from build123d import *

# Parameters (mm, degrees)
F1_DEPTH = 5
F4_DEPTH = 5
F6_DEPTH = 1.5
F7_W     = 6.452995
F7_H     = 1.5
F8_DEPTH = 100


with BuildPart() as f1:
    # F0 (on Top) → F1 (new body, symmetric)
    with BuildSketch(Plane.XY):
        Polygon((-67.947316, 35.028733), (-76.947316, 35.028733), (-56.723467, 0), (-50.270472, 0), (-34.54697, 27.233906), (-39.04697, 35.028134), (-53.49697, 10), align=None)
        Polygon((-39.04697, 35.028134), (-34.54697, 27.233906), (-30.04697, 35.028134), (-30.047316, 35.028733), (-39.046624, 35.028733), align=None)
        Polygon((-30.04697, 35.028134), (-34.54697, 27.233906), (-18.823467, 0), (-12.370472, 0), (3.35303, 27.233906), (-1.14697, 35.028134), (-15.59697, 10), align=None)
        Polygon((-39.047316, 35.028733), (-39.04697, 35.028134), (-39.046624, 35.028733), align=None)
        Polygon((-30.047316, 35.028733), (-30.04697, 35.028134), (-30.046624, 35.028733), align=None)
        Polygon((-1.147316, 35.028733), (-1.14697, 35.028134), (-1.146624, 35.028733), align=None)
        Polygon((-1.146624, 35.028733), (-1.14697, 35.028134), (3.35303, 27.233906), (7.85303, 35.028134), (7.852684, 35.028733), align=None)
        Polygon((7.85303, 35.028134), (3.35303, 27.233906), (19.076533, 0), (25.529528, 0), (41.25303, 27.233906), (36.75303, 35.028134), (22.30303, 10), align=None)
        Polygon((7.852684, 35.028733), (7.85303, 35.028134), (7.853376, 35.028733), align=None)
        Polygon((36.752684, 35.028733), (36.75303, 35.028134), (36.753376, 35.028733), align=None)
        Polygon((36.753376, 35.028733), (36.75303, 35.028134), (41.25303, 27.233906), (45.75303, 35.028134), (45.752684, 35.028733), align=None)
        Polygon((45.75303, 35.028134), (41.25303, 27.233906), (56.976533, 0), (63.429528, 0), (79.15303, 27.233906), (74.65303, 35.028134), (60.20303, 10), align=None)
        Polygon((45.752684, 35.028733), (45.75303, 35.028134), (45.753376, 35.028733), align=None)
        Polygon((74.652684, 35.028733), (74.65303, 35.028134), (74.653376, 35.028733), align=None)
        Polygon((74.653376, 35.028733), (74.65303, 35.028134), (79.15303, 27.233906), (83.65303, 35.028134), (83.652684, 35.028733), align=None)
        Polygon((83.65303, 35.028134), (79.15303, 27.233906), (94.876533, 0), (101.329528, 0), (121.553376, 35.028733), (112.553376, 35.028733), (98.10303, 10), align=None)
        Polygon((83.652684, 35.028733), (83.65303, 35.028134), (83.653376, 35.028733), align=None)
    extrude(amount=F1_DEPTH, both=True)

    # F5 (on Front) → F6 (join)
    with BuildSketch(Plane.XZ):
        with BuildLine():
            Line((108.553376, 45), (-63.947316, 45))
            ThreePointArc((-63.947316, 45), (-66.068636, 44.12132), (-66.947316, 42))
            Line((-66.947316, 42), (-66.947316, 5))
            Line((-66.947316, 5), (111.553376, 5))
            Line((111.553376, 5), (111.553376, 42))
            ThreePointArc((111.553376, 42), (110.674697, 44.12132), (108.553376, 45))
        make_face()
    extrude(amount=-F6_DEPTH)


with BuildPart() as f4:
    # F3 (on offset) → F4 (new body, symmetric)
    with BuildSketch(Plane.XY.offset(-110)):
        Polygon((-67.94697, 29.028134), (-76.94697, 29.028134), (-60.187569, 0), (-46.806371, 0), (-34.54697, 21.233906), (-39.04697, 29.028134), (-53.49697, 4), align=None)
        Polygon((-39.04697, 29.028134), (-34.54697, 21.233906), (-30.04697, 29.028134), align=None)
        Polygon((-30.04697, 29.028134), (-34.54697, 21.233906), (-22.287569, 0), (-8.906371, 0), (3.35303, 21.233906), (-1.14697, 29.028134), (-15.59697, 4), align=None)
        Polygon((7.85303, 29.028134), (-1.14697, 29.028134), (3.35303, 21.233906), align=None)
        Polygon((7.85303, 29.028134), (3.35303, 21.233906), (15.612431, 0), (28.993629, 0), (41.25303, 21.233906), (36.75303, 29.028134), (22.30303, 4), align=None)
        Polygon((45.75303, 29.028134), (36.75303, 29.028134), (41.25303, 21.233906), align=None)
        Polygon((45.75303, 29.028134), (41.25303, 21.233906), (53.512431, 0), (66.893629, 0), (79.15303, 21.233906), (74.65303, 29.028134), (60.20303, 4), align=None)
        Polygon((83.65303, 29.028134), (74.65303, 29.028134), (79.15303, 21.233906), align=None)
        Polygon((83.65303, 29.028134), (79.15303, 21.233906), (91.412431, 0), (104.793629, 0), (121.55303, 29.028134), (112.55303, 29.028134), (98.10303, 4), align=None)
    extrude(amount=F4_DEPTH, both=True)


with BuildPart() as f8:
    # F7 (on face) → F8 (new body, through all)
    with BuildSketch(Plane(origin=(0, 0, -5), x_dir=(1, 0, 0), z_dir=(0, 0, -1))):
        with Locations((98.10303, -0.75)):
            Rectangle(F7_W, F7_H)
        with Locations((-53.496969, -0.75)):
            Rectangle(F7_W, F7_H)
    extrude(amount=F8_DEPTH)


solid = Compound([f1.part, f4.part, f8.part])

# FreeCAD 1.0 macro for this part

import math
import FreeCAD as App
import Part
import Sketcher

V = App.Vector
Q = App.Units.Quantity

doc = App.newDocument("Part")
body = doc.addObject("PartDesign::Body", "Body")

sketch1 = body.newObject("Sketcher::SketchObject", "Sketch")
sketch1.AttachmentSupport = (doc.getObject("XY_Plane"), [""])
sketch1.MapMode = "FlatFace"
sketch1.addGeometry([
    Part.LineSegment(V(-67.947316, 35.028733, 0), V(-76.947316, 35.028733, 0)),
    Part.LineSegment(V(-76.947316, 35.028733, 0), V(-56.723467, 0, 0)),
    Part.LineSegment(V(-56.723467, 0, 0), V(-50.270472, 0, 0)),
    Part.LineSegment(V(-50.270472, 0, 0), V(-34.54697, 27.233906, 0)),
    Part.LineSegment(V(-34.54697, 27.233906, 0), V(-18.823467, 0, 0)),
    Part.LineSegment(V(-18.823467, 0, 0), V(-12.370472, 0, 0)),
    Part.LineSegment(V(-12.370472, 0, 0), V(3.35303, 27.233906, 0)),
    Part.LineSegment(V(3.35303, 27.233906, 0), V(19.076533, 0, 0)),
    Part.LineSegment(V(19.076533, 0, 0), V(25.529528, 0, 0)),
    Part.LineSegment(V(25.529528, 0, 0), V(41.25303, 27.233906, 0)),
    Part.LineSegment(V(41.25303, 27.233906, 0), V(56.976533, 0, 0)),
    Part.LineSegment(V(56.976533, 0, 0), V(63.429528, 0, 0)),
    Part.LineSegment(V(63.429528, 0, 0), V(79.15303, 27.233906, 0)),
    Part.LineSegment(V(79.15303, 27.233906, 0), V(94.876533, 0, 0)),
    Part.LineSegment(V(94.876533, 0, 0), V(101.329528, 0, 0)),
    Part.LineSegment(V(101.329528, 0, 0), V(121.553376, 35.028733, 0)),
    Part.LineSegment(V(121.553376, 35.028733, 0), V(112.553376, 35.028733, 0)),
    Part.LineSegment(V(112.553376, 35.028733, 0), V(98.10303, 10, 0)),
    Part.LineSegment(V(98.10303, 10, 0), V(83.65303, 35.028134, 0)),
    Part.LineSegment(V(83.65303, 35.028134, 0), V(83.653376, 35.028733, 0)),
    Part.LineSegment(V(83.653376, 35.028733, 0), V(74.652684, 35.028733, 0)),
    Part.LineSegment(V(74.652684, 35.028733, 0), V(74.65303, 35.028134, 0)),
    Part.LineSegment(V(74.65303, 35.028134, 0), V(60.20303, 10, 0)),
    Part.LineSegment(V(60.20303, 10, 0), V(45.75303, 35.028134, 0)),
    Part.LineSegment(V(45.75303, 35.028134, 0), V(45.753376, 35.028733, 0)),
    Part.LineSegment(V(45.753376, 35.028733, 0), V(36.752684, 35.028733, 0)),
    Part.LineSegment(V(36.752684, 35.028733, 0), V(36.75303, 35.028134, 0)),
    Part.LineSegment(V(36.75303, 35.028134, 0), V(22.30303, 10, 0)),
    Part.LineSegment(V(22.30303, 10, 0), V(7.85303, 35.028134, 0)),
    Part.LineSegment(V(7.85303, 35.028134, 0), V(7.853376, 35.028733, 0)),
    Part.LineSegment(V(7.853376, 35.028733, 0), V(-1.147316, 35.028733, 0)),
    Part.LineSegment(V(-1.147316, 35.028733, 0), V(-1.14697, 35.028134, 0)),
    Part.LineSegment(V(-1.14697, 35.028134, 0), V(-15.59697, 10, 0)),
    Part.LineSegment(V(-15.59697, 10, 0), V(-30.04697, 35.028134, 0)),
    Part.LineSegment(V(-30.04697, 35.028134, 0), V(-30.046624, 35.028733, 0)),
    Part.LineSegment(V(-30.046624, 35.028733, 0), V(-39.047316, 35.028733, 0)),
    Part.LineSegment(V(-39.047316, 35.028733, 0), V(-39.04697, 35.028134, 0)),
    Part.LineSegment(V(-39.04697, 35.028134, 0), V(-53.49697, 10, 0)),
    Part.LineSegment(V(-53.49697, 10, 0), V(-67.947316, 35.028733, 0)),
], False)
sketch1.addConstraint([
    Sketcher.Constraint("Coincident", 0, 2, 1, 1),
    Sketcher.Constraint("Coincident", 1, 2, 2, 1),
    Sketcher.Constraint("Coincident", 2, 2, 3, 1),
    Sketcher.Constraint("Coincident", 3, 2, 4, 1),
    Sketcher.Constraint("Coincident", 4, 2, 5, 1),
    Sketcher.Constraint("Coincident", 5, 2, 6, 1),
    Sketcher.Constraint("Coincident", 6, 2, 7, 1),
    Sketcher.Constraint("Coincident", 7, 2, 8, 1),
    Sketcher.Constraint("Coincident", 8, 2, 9, 1),
    Sketcher.Constraint("Coincident", 9, 2, 10, 1),
    Sketcher.Constraint("Coincident", 10, 2, 11, 1),
    Sketcher.Constraint("Coincident", 11, 2, 12, 1),
    Sketcher.Constraint("Coincident", 12, 2, 13, 1),
    Sketcher.Constraint("Coincident", 13, 2, 14, 1),
    Sketcher.Constraint("Coincident", 14, 2, 15, 1),
    Sketcher.Constraint("Coincident", 15, 2, 16, 1),
    Sketcher.Constraint("Coincident", 16, 2, 17, 1),
    Sketcher.Constraint("Coincident", 17, 2, 18, 1),
    Sketcher.Constraint("Coincident", 18, 2, 19, 1),
    Sketcher.Constraint("Coincident", 19, 2, 20, 1),
    Sketcher.Constraint("Coincident", 20, 2, 21, 1),
    Sketcher.Constraint("Coincident", 21, 2, 22, 1),
    Sketcher.Constraint("Coincident", 22, 2, 23, 1),
    Sketcher.Constraint("Coincident", 23, 2, 24, 1),
    Sketcher.Constraint("Coincident", 24, 2, 25, 1),
    Sketcher.Constraint("Coincident", 25, 2, 26, 1),
    Sketcher.Constraint("Coincident", 26, 2, 27, 1),
    Sketcher.Constraint("Coincident", 27, 2, 28, 1),
    Sketcher.Constraint("Coincident", 28, 2, 29, 1),
    Sketcher.Constraint("Coincident", 29, 2, 30, 1),
    Sketcher.Constraint("Coincident", 30, 2, 31, 1),
    Sketcher.Constraint("Coincident", 31, 2, 32, 1),
    Sketcher.Constraint("Coincident", 32, 2, 33, 1),
    Sketcher.Constraint("Coincident", 33, 2, 34, 1),
    Sketcher.Constraint("Coincident", 34, 2, 35, 1),
    Sketcher.Constraint("Coincident", 35, 2, 36, 1),
    Sketcher.Constraint("Coincident", 36, 2, 37, 1),
    Sketcher.Constraint("Coincident", 37, 2, 38, 1),
    Sketcher.Constraint("Coincident", 38, 2, 0, 1),
    Sketcher.Constraint("Horizontal", 0),
    Sketcher.Constraint("Horizontal", 2),
    Sketcher.Constraint("Horizontal", 5),
    Sketcher.Constraint("Horizontal", 8),
    Sketcher.Constraint("Horizontal", 11),
    Sketcher.Constraint("Horizontal", 14),
    Sketcher.Constraint("Horizontal", 16),
    Sketcher.Constraint("Horizontal", 20),
    Sketcher.Constraint("Horizontal", 25),
    Sketcher.Constraint("Horizontal", 30),
    Sketcher.Constraint("Horizontal", 35),
    Sketcher.Constraint("PointOnObject", 1, 2, -1),
    Sketcher.Constraint("PointOnObject", 4, 2, -1),
    Sketcher.Constraint("PointOnObject", 7, 2, -1),
    Sketcher.Constraint("PointOnObject", 10, 2, -1),
    Sketcher.Constraint("PointOnObject", 13, 2, -1),
    Sketcher.Constraint("Parallel", 1, 4),
    Sketcher.Constraint("Parallel", 3, 6),
    Sketcher.Constraint("Parallel", 4, 7),
    Sketcher.Constraint("Parallel", 6, 9),
    Sketcher.Constraint("Parallel", 7, 10),
    Sketcher.Constraint("Parallel", 9, 12),
    Sketcher.Constraint("Parallel", 10, 13),
    Sketcher.Constraint("Parallel", 12, 15),
    Sketcher.Constraint("Parallel", 15, 17),
    Sketcher.Constraint("Parallel", 13, 18),
    Sketcher.Constraint("Parallel", 17, 22),
    Sketcher.Constraint("Parallel", 18, 23),
    Sketcher.Constraint("Parallel", 19, 24),
    Sketcher.Constraint("Parallel", 21, 26),
    Sketcher.Constraint("Parallel", 22, 27),
    Sketcher.Constraint("Parallel", 23, 28),
    Sketcher.Constraint("Parallel", 24, 29),
    Sketcher.Constraint("Parallel", 26, 31),
    Sketcher.Constraint("Parallel", 27, 32),
    Sketcher.Constraint("Parallel", 28, 33),
    Sketcher.Constraint("Parallel", 29, 34),
    Sketcher.Constraint("Parallel", 31, 36),
    Sketcher.Constraint("Parallel", 32, 37),
    Sketcher.Constraint("Parallel", 33, 38),
    Sketcher.Constraint("Horizontal", 3, 2, 6, 2),
    Sketcher.Constraint("Horizontal", 6, 2, 9, 2),
    Sketcher.Constraint("Horizontal", 9, 2, 12, 2),
    Sketcher.Constraint("Horizontal", 0, 2, 15, 2),
    Sketcher.Constraint("Horizontal", 16, 2, 19, 2),
    Sketcher.Constraint("Horizontal", 18, 2, 21, 2),
    Sketcher.Constraint("Horizontal", 17, 2, 22, 2),
    Sketcher.Constraint("Horizontal", 21, 2, 23, 2),
    Sketcher.Constraint("Horizontal", 20, 2, 24, 2),
    Sketcher.Constraint("Horizontal", 23, 2, 26, 2),
    Sketcher.Constraint("Horizontal", 22, 2, 27, 2),
    Sketcher.Constraint("Horizontal", 26, 2, 28, 2),
    Sketcher.Constraint("Horizontal", 25, 2, 29, 2),
    Sketcher.Constraint("Horizontal", 28, 2, 31, 2),
    Sketcher.Constraint("Horizontal", 27, 2, 32, 2),
    Sketcher.Constraint("Horizontal", 31, 2, 33, 2),
    Sketcher.Constraint("Horizontal", 30, 2, 34, 2),
    Sketcher.Constraint("Horizontal", 33, 2, 36, 2),
    Sketcher.Constraint("Horizontal", 32, 2, 37, 2),
    Sketcher.Constraint("Equal", 2, 5),
    Sketcher.Constraint("Equal", 5, 8),
    Sketcher.Constraint("Equal", 8, 11),
    Sketcher.Constraint("Equal", 11, 14),
    Sketcher.Constraint("Equal", 0, 16),
    Sketcher.Constraint("Equal", 20, 25),
    Sketcher.Constraint("Equal", 25, 30),
    Sketcher.Constraint("Equal", 30, 35),
    Sketcher.Constraint("Equal", 3, 4),
    Sketcher.Constraint("Equal", 19, 21),
    Sketcher.Constraint("DistanceX", 0, 2, 0, 1, Q("9 mm")),
    Sketcher.Constraint("Angle", 1, Q("-59.999999 deg")),
    Sketcher.Constraint("DistanceY", -1, 1, 17, 2, Q("10 mm")),
    Sketcher.Constraint("DistanceX", 21, 2, 18, 2, Q("9 mm")),
    Sketcher.Constraint("Distance", 18, Q("28.9 mm")),
    Sketcher.Constraint("DistanceX", 1, 2, 4, 2, Q("37.9 mm")),
    Sketcher.Constraint("DistanceX", 19, 2, 16, 2, Q("28.9 mm")),
    Sketcher.Constraint("DistanceY", 18, 2, 16, 2, Q("0.000599 mm")),
    Sketcher.Constraint("DistanceX", 2, 2, -1, 1, Q("50.270472 mm")),
])
pad1 = body.newObject("PartDesign::Pad", "Pad")
pad1.Profile = sketch1
pad1.Length = 10
pad1.Midplane = True

sketch2 = body.newObject("Sketcher::SketchObject", "Sketch001")
sketch2.AttachmentSupport = (doc.getObject("XZ_Plane"), [""])
sketch2.MapMode = "FlatFace"
sketch2.addGeometry([
    Part.LineSegment(V(108.553376, 45, 0), V(-63.947316, 45, 0)),
    Part.ArcOfCircle(Part.Circle(V(-63.947315, 41.999999, 0), V(0, 0, 1), 3.000001), math.radians(90.000022), math.radians(179.999978)),
    Part.LineSegment(V(-66.947316, 42, 0), V(-66.947316, 5, 0)),
    Part.LineSegment(V(-66.947316, 5, 0), V(111.553376, 5, 0)),
    Part.LineSegment(V(111.553376, 5, 0), V(111.553376, 42, 0)),
    Part.ArcOfCircle(Part.Circle(V(108.553377, 42.000001, 0), V(0, 0, 1), 2.999999), math.radians(-0.00001), math.radians(90.00001)),
], False)
sketch2.addConstraint([
    Sketcher.Constraint("Tangent", 0, 2, 1, 1),
    Sketcher.Constraint("Tangent", 1, 2, 2, 1),
    Sketcher.Constraint("Coincident", 2, 2, 3, 1),
    Sketcher.Constraint("Coincident", 3, 2, 4, 1),
    Sketcher.Constraint("Tangent", 4, 2, 5, 1),
    Sketcher.Constraint("Tangent", 5, 2, 0, 1),
    Sketcher.Constraint("Horizontal", 0),
    Sketcher.Constraint("Vertical", 2),
    Sketcher.Constraint("Horizontal", 3),
    Sketcher.Constraint("Vertical", 4),
    Sketcher.Constraint("Equal", 1, 5),
    Sketcher.Constraint("Radius", 1, Q("3.000001 mm")),
    Sketcher.Constraint("DistanceY", 2, 2, 2, 1, Q("37 mm")),
    Sketcher.Constraint("DistanceY", -1, 1, 1, 3, Q("41.999999 mm")),
    Sketcher.Constraint("DistanceX", 0, 2, 0, 1, Q("172.500692 mm")),
    Sketcher.Constraint("DistanceX", 1, 3, -1, 1, Q("63.947315 mm")),
])
pad2 = body.newObject("PartDesign::Pad", "Pad001")
pad2.Profile = sketch2
pad2.Length = 1.5
pad2.Reversed = True
body2 = doc.addObject("PartDesign::Body", "Body001")

sketch3 = body2.newObject("Sketcher::SketchObject", "Sketch002")
sketch3.AttachmentSupport = (doc.getObject("XY_Plane001"), [""])
sketch3.MapMode = "FlatFace"
sketch3.AttachmentOffset = App.Placement(V(0, 0, -110), App.Rotation())
sketch3.addGeometry([
    Part.LineSegment(V(-67.94697, 29.028134, 0), V(-76.94697, 29.028134, 0)),
    Part.LineSegment(V(-76.94697, 29.028134, 0), V(-60.187569, 0, 0)),
    Part.LineSegment(V(-60.187569, 0, 0), V(-46.806371, 0, 0)),
    Part.LineSegment(V(-46.806371, 0, 0), V(-34.54697, 21.233906, 0)),
    Part.LineSegment(V(-34.54697, 21.233906, 0), V(-22.287569, 0, 0)),
    Part.LineSegment(V(-22.287569, 0, 0), V(-8.906371, 0, 0)),
    Part.LineSegment(V(-8.906371, 0, 0), V(3.35303, 21.233906, 0)),
    Part.LineSegment(V(3.35303, 21.233906, 0), V(15.612431, 0, 0)),
    Part.LineSegment(V(15.612431, 0, 0), V(28.993629, 0, 0)),
    Part.LineSegment(V(28.993629, 0, 0), V(41.25303, 21.233906, 0)),
    Part.LineSegment(V(41.25303, 21.233906, 0), V(53.512431, 0, 0)),
    Part.LineSegment(V(53.512431, 0, 0), V(66.893629, 0, 0)),
    Part.LineSegment(V(66.893629, 0, 0), V(79.15303, 21.233906, 0)),
    Part.LineSegment(V(79.15303, 21.233906, 0), V(91.412431, 0, 0)),
    Part.LineSegment(V(91.412431, 0, 0), V(104.793629, 0, 0)),
    Part.LineSegment(V(104.793629, 0, 0), V(121.55303, 29.028134, 0)),
    Part.LineSegment(V(121.55303, 29.028134, 0), V(112.55303, 29.028134, 0)),
    Part.LineSegment(V(112.55303, 29.028134, 0), V(98.10303, 4, 0)),
    Part.LineSegment(V(98.10303, 4, 0), V(83.65303, 29.028134, 0)),
    Part.LineSegment(V(83.65303, 29.028134, 0), V(74.65303, 29.028134, 0)),
    Part.LineSegment(V(74.65303, 29.028134, 0), V(60.20303, 4, 0)),
    Part.LineSegment(V(60.20303, 4, 0), V(45.75303, 29.028134, 0)),
    Part.LineSegment(V(45.75303, 29.028134, 0), V(36.75303, 29.028134, 0)),
    Part.LineSegment(V(36.75303, 29.028134, 0), V(22.30303, 4, 0)),
    Part.LineSegment(V(22.30303, 4, 0), V(7.85303, 29.028134, 0)),
    Part.LineSegment(V(7.85303, 29.028134, 0), V(-1.14697, 29.028134, 0)),
    Part.LineSegment(V(-1.14697, 29.028134, 0), V(-15.59697, 4, 0)),
    Part.LineSegment(V(-15.59697, 4, 0), V(-30.04697, 29.028134, 0)),
    Part.LineSegment(V(-30.04697, 29.028134, 0), V(-39.04697, 29.028134, 0)),
    Part.LineSegment(V(-39.04697, 29.028134, 0), V(-53.49697, 4, 0)),
    Part.LineSegment(V(-53.49697, 4, 0), V(-67.94697, 29.028134, 0)),
], False)
sketch3.addConstraint([
    Sketcher.Constraint("Coincident", 0, 2, 1, 1),
    Sketcher.Constraint("Coincident", 1, 2, 2, 1),
    Sketcher.Constraint("Coincident", 2, 2, 3, 1),
    Sketcher.Constraint("Coincident", 3, 2, 4, 1),
    Sketcher.Constraint("Coincident", 4, 2, 5, 1),
    Sketcher.Constraint("Coincident", 5, 2, 6, 1),
    Sketcher.Constraint("Coincident", 6, 2, 7, 1),
    Sketcher.Constraint("Coincident", 7, 2, 8, 1),
    Sketcher.Constraint("Coincident", 8, 2, 9, 1),
    Sketcher.Constraint("Coincident", 9, 2, 10, 1),
    Sketcher.Constraint("Coincident", 10, 2, 11, 1),
    Sketcher.Constraint("Coincident", 11, 2, 12, 1),
    Sketcher.Constraint("Coincident", 12, 2, 13, 1),
    Sketcher.Constraint("Coincident", 13, 2, 14, 1),
    Sketcher.Constraint("Coincident", 14, 2, 15, 1),
    Sketcher.Constraint("Coincident", 15, 2, 16, 1),
    Sketcher.Constraint("Coincident", 16, 2, 17, 1),
    Sketcher.Constraint("Coincident", 17, 2, 18, 1),
    Sketcher.Constraint("Coincident", 18, 2, 19, 1),
    Sketcher.Constraint("Coincident", 19, 2, 20, 1),
    Sketcher.Constraint("Coincident", 20, 2, 21, 1),
    Sketcher.Constraint("Coincident", 21, 2, 22, 1),
    Sketcher.Constraint("Coincident", 22, 2, 23, 1),
    Sketcher.Constraint("Coincident", 23, 2, 24, 1),
    Sketcher.Constraint("Coincident", 24, 2, 25, 1),
    Sketcher.Constraint("Coincident", 25, 2, 26, 1),
    Sketcher.Constraint("Coincident", 26, 2, 27, 1),
    Sketcher.Constraint("Coincident", 27, 2, 28, 1),
    Sketcher.Constraint("Coincident", 28, 2, 29, 1),
    Sketcher.Constraint("Coincident", 29, 2, 30, 1),
    Sketcher.Constraint("Coincident", 30, 2, 0, 1),
    Sketcher.Constraint("Horizontal", 0),
    Sketcher.Constraint("Horizontal", 2),
    Sketcher.Constraint("Horizontal", 5),
    Sketcher.Constraint("Horizontal", 8),
    Sketcher.Constraint("Horizontal", 11),
    Sketcher.Constraint("Horizontal", 14),
    Sketcher.Constraint("Horizontal", 16),
    Sketcher.Constraint("Horizontal", 19),
    Sketcher.Constraint("Horizontal", 22),
    Sketcher.Constraint("Horizontal", 25),
    Sketcher.Constraint("Horizontal", 28),
    Sketcher.Constraint("PointOnObject", 1, 2, -1),
    Sketcher.Constraint("PointOnObject", 4, 2, -1),
    Sketcher.Constraint("PointOnObject", 7, 2, -1),
    Sketcher.Constraint("PointOnObject", 10, 2, -1),
    Sketcher.Constraint("PointOnObject", 13, 2, -1),
    Sketcher.Constraint("Parallel", 1, 4),
    Sketcher.Constraint("Parallel", 3, 6),
    Sketcher.Constraint("Parallel", 4, 7),
    Sketcher.Constraint("Parallel", 6, 9),
    Sketcher.Constraint("Parallel", 7, 10),
    Sketcher.Constraint("Parallel", 9, 12),
    Sketcher.Constraint("Parallel", 10, 13),
    Sketcher.Constraint("Parallel", 12, 15),
    Sketcher.Constraint("Parallel", 15, 17),
    Sketcher.Constraint("Parallel", 13, 18),
    Sketcher.Constraint("Parallel", 17, 20),
    Sketcher.Constraint("Parallel", 18, 21),
    Sketcher.Constraint("Parallel", 20, 23),
    Sketcher.Constraint("Parallel", 21, 24),
    Sketcher.Constraint("Parallel", 23, 26),
    Sketcher.Constraint("Parallel", 24, 27),
    Sketcher.Constraint("Parallel", 26, 29),
    Sketcher.Constraint("Parallel", 27, 30),
    Sketcher.Constraint("Horizontal", 3, 2, 6, 2),
    Sketcher.Constraint("Horizontal", 6, 2, 9, 2),
    Sketcher.Constraint("Horizontal", 9, 2, 12, 2),
    Sketcher.Constraint("Horizontal", 0, 2, 15, 2),
    Sketcher.Constraint("Horizontal", 16, 2, 18, 2),
    Sketcher.Constraint("Horizontal", 17, 2, 20, 2),
    Sketcher.Constraint("Horizontal", 19, 2, 21, 2),
    Sketcher.Constraint("Horizontal", 20, 2, 23, 2),
    Sketcher.Constraint("Horizontal", 22, 2, 24, 2),
    Sketcher.Constraint("Horizontal", 23, 2, 26, 2),
    Sketcher.Constraint("Horizontal", 25, 2, 27, 2),
    Sketcher.Constraint("Horizontal", 26, 2, 29, 2),
    Sketcher.Constraint("Equal", 2, 5),
    Sketcher.Constraint("Equal", 5, 8),
    Sketcher.Constraint("Equal", 8, 11),
    Sketcher.Constraint("Equal", 11, 14),
    Sketcher.Constraint("Equal", 0, 16),
    Sketcher.Constraint("Equal", 16, 19),
    Sketcher.Constraint("Equal", 19, 22),
    Sketcher.Constraint("Equal", 22, 25),
    Sketcher.Constraint("Equal", 25, 28),
    Sketcher.Constraint("Equal", 3, 4),
    Sketcher.Constraint("DistanceX", 0, 2, 0, 1, Q("9 mm")),
    Sketcher.Constraint("Angle", 1, Q("-60 deg")),
    Sketcher.Constraint("DistanceY", -1, 1, 17, 2, Q("4 mm")),
    Sketcher.Constraint("Distance", 17, Q("28.9 mm")),
    Sketcher.Constraint("DistanceX", 0, 2, 3, 2, Q("42.4 mm")),
    Sketcher.Constraint("DistanceX", 0, 2, -1, 1, Q("76.94697 mm")),
])
pad3 = body2.newObject("PartDesign::Pad", "Pad002")
pad3.Profile = sketch3
pad3.Length = 10
pad3.Midplane = True
body3 = doc.addObject("PartDesign::Body", "Body002")
body3.AllowCompound = True

sketch4 = body3.newObject("Sketcher::SketchObject", "Sketch003")
sketch4.AttachmentSupport = (doc.getObject("XY_Plane002"), [""])
sketch4.MapMode = "FlatFace"
sketch4.AttachmentOffset = App.Placement(V(0, 0, -5), App.Rotation())
sketch4.addGeometry([
    Part.LineSegment(V(94.876532, 0, 0), V(94.876532, 1.5, 0)),
    Part.LineSegment(V(94.876532, 1.5, 0), V(101.329527, 1.5, 0)),
    Part.LineSegment(V(101.329527, 1.5, 0), V(101.329527, 0, 0)),
    Part.LineSegment(V(101.329527, 0, 0), V(94.876532, 0, 0)),
    Part.LineSegment(V(-56.723467, 0, 0), V(-56.723467, 1.5, 0)),
    Part.LineSegment(V(-56.723467, 1.5, 0), V(-50.270471, 1.5, 0)),
    Part.LineSegment(V(-50.270471, 1.5, 0), V(-50.270471, 0, 0)),
    Part.LineSegment(V(-50.270471, 0, 0), V(-56.723467, 0, 0)),
], False)
sketch4.addConstraint([
    Sketcher.Constraint("Coincident", 0, 2, 1, 1),
    Sketcher.Constraint("Coincident", 1, 2, 2, 1),
    Sketcher.Constraint("Coincident", 2, 2, 3, 1),
    Sketcher.Constraint("Coincident", 3, 2, 0, 1),
    Sketcher.Constraint("Coincident", 4, 2, 5, 1),
    Sketcher.Constraint("Coincident", 5, 2, 6, 1),
    Sketcher.Constraint("Coincident", 6, 2, 7, 1),
    Sketcher.Constraint("Coincident", 7, 2, 4, 1),
    Sketcher.Constraint("Vertical", 0),
    Sketcher.Constraint("Horizontal", 1),
    Sketcher.Constraint("Vertical", 2),
    Sketcher.Constraint("Horizontal", 3),
    Sketcher.Constraint("Vertical", 4),
    Sketcher.Constraint("Horizontal", 5),
    Sketcher.Constraint("Vertical", 6),
    Sketcher.Constraint("Horizontal", 7),
    Sketcher.Constraint("PointOnObject", 2, 2, -1),
    Sketcher.Constraint("PointOnObject", 6, 2, -1),
    Sketcher.Constraint("Horizontal", 1, 2, 4, 2),
    Sketcher.Constraint("Equal", 3, 5),
    Sketcher.Constraint("DistanceY", 0, 1, 0, 2, Q("1.5 mm")),
    Sketcher.Constraint("DistanceX", 4, 2, 0, 2, Q("151.599999 mm")),
    Sketcher.Constraint("DistanceX", 1, 1, 1, 2, Q("6.452995 mm")),
    Sketcher.Constraint("DistanceX", 5, 2, -1, 1, Q("50.270471 mm")),
])
pad4 = body3.newObject("PartDesign::Pad", "Pad003")
pad4.Profile = sketch4
pad4.Length = 100
pad4.Reversed = True

doc.recompute()
